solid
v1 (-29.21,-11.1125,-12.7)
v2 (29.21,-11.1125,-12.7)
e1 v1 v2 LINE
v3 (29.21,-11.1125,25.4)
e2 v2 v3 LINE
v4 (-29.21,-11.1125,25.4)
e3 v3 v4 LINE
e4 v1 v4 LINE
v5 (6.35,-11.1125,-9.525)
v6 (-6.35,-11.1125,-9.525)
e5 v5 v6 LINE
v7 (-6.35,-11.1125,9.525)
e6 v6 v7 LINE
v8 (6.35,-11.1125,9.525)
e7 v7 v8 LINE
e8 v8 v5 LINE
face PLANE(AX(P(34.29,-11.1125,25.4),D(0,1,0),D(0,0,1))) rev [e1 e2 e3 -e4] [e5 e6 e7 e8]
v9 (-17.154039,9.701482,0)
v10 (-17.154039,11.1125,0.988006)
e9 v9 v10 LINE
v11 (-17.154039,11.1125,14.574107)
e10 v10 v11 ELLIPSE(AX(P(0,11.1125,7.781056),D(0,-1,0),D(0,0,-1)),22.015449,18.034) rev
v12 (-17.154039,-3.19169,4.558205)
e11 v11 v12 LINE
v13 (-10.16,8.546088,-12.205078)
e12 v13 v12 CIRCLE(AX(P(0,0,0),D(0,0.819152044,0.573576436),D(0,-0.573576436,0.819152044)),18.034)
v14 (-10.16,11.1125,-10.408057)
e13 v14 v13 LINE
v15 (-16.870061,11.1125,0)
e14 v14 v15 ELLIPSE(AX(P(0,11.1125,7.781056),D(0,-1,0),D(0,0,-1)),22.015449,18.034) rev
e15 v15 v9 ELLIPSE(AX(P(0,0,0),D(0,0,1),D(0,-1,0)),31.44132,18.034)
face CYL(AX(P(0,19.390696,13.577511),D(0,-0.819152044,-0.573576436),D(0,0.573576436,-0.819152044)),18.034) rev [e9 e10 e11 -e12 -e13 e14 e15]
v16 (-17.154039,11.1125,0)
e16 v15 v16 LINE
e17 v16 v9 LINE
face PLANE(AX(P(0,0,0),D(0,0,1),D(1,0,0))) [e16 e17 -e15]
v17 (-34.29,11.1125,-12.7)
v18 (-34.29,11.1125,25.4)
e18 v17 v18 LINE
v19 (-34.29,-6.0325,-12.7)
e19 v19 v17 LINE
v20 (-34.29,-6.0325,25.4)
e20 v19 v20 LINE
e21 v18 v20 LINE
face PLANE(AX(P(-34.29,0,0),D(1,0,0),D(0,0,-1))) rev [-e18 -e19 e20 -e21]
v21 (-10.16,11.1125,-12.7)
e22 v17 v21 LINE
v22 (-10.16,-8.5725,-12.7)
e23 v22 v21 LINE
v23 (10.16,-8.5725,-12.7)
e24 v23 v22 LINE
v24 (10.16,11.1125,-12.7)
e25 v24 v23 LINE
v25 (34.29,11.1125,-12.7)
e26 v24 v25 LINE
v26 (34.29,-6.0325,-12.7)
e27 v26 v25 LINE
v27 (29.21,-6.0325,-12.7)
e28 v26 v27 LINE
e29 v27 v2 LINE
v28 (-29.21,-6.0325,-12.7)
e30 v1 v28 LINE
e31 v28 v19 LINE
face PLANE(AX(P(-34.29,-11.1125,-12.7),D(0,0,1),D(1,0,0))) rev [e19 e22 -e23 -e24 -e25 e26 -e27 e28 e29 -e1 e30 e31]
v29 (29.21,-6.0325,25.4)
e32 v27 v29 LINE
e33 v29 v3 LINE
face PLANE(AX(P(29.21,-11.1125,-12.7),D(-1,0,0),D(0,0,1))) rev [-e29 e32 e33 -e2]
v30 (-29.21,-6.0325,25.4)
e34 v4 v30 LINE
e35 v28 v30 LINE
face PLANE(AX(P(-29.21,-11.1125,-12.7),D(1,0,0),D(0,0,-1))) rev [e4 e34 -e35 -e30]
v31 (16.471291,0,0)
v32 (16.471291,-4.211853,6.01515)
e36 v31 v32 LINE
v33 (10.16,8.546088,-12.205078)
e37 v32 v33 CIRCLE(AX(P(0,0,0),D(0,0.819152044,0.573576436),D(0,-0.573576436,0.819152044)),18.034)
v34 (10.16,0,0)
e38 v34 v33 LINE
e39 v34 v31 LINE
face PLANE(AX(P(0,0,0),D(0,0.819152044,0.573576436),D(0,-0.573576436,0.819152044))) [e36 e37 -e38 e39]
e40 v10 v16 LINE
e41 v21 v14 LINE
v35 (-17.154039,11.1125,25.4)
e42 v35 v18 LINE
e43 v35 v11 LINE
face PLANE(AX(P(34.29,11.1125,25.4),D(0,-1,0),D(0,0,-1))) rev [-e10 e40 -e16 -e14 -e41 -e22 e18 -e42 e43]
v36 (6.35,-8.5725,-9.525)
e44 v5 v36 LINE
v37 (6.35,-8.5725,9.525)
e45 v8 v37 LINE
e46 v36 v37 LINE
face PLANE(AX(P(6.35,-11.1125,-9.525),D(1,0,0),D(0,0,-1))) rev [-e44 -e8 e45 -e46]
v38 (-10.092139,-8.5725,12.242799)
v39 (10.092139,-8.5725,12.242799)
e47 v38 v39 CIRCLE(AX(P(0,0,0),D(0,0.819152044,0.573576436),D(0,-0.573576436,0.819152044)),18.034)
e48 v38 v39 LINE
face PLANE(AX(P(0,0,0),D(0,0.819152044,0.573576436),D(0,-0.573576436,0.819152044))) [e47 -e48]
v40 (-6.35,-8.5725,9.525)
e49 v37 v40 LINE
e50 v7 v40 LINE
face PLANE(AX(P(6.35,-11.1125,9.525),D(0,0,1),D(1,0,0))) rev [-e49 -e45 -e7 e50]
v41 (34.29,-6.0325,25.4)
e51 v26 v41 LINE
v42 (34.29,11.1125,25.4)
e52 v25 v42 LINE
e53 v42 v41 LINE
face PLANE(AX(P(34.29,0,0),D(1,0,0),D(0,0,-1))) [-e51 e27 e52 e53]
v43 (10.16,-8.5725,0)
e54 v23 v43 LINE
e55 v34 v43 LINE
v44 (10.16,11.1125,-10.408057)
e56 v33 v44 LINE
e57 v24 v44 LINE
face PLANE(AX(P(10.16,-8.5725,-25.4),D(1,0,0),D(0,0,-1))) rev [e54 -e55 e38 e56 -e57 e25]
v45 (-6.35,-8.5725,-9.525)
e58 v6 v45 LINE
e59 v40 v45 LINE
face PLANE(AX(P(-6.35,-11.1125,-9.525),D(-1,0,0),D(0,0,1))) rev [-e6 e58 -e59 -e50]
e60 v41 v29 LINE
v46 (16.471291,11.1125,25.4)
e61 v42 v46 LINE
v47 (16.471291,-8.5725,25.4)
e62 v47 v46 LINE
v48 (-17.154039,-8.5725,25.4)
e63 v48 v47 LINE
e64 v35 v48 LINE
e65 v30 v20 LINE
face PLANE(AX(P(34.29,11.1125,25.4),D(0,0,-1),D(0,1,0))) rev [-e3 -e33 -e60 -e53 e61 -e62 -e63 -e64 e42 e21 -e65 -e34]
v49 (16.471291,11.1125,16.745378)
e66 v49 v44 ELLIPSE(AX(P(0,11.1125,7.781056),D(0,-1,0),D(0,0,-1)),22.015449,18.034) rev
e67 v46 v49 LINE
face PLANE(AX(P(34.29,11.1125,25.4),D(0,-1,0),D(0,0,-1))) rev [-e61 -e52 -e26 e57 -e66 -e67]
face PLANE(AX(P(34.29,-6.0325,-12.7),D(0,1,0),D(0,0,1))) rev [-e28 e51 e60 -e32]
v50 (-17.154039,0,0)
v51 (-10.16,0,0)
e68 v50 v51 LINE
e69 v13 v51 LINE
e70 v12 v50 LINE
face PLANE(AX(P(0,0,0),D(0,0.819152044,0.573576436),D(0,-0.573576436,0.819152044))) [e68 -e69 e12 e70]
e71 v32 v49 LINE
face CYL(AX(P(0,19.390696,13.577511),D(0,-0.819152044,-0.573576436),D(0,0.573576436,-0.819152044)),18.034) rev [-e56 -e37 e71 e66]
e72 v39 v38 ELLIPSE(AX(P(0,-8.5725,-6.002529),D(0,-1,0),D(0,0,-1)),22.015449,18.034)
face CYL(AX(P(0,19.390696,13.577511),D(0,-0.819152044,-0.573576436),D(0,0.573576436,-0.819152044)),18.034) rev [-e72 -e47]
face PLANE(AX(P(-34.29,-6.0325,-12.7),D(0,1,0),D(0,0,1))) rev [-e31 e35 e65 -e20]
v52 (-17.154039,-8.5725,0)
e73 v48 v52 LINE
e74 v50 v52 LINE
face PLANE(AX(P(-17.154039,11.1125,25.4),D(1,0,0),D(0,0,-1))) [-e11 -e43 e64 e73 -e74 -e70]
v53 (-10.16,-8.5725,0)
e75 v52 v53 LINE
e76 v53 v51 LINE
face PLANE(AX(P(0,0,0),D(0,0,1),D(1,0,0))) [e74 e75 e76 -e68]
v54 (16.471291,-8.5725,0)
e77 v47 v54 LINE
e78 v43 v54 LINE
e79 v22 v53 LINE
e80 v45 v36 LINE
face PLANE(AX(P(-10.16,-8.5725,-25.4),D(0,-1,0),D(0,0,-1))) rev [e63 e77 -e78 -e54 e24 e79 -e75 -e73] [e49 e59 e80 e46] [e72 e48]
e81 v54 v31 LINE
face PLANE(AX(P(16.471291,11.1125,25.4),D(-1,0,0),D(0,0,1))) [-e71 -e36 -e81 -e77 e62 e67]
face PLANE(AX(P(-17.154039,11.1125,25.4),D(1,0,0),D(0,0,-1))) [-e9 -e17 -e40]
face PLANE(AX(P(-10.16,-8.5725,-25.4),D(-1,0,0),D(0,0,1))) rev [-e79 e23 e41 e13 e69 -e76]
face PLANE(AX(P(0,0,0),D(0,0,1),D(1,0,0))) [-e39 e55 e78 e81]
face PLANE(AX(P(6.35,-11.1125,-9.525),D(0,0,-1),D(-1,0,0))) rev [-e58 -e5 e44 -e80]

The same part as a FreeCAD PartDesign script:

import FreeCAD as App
import Part
import Sketcher
Q = App.Units.Quantity


def add_polygon(sketch, points):
    """Adds a closed chain of lines whose ends are joined by coincident constraints."""
    first, n = sketch.GeometryCount, len(points)
    for a, b in zip(points, points[1:] + points[:1]):
        sketch.addGeometry(Part.LineSegment(App.Vector(*a, 0), App.Vector(*b, 0)), False)
    for i in range(n):
        sketch.addConstraint(Sketcher.Constraint("Coincident", first + i, 2, first + (i + 1) % n, 1))

doc = App.newDocument("Part")
body = doc.addObject("PartDesign::Body", "Body")

# Sketch on YZ plane
sketch1 = doc.addObject("Sketcher::SketchObject", "Sketch")
body.addObject(sketch1)
sketch1.AttachmentSupport = (doc.YZ_Plane, [""])
sketch1.MapMode = "FlatFace"
add_polygon(sketch1, [(11.1125, 25.4), (-11.1125, 25.4), (-11.1125, -25.4), (11.1125, -25.4)])  # lines 0-3
sketch1.addConstraint(Sketcher.Constraint("Horizontal", 0))
sketch1.addConstraint(Sketcher.Constraint("Vertical", 1))
sketch1.addConstraint(Sketcher.Constraint("Horizontal", 2))
sketch1.addConstraint(Sketcher.Constraint("Vertical", 3))
sketch1.addConstraint(Sketcher.Constraint("Symmetric", 0, 2, 2, 2, -1, 1))
sketch1.addConstraint(Sketcher.Constraint("DistanceY", 1, 2, 1, 1, Q("2 in")))
sketch1.addConstraint(Sketcher.Constraint("DistanceX", 0, 2, 0, 1, Q("0.875 in")))
pad1 = doc.addObject("PartDesign::Pad", "Pad")
body.addObject(pad1)
pad1.Profile = sketch1
pad1.Length = Q("2.7 in")
pad1.Midplane = True

# Sketch on an angled plane
sketch2 = doc.addObject("Sketcher::SketchObject", "Sketch001")
body.addObject(sketch2)
sketch2.Placement = App.Placement(App.Vector(0, 0, 0), App.Rotation(App.Vector(1, 0, 0), App.Vector(0, 0.573576436, -0.819152044), App.Vector(0, 0.819152044, 0.573576436), "ZXY"))
sketch2.addGeometry(Part.Circle(App.Vector(0, 0, 0), App.Vector(0, 0, 1), 18.034), False)
sketch2.addConstraint(Sketcher.Constraint("Coincident", 0, 3, -1, 1))
sketch2.addConstraint(Sketcher.Constraint("Diameter", 0, Q("1.42 in")))
pocket1 = doc.addObject("PartDesign::Pocket", "Pocket")
body.addObject(pocket1)
pocket1.Profile = sketch2
pocket1.Type = "ThroughAll"
pocket1.Reversed = True

# Sketch on XY plane
sketch3 = doc.addObject("Sketcher::SketchObject", "Sketch002")
body.addObject(sketch3)
sketch3.AttachmentSupport = (doc.XY_Plane, [""])
sketch3.MapMode = "FlatFace"
sketch3.AttachmentOffset = App.Placement(App.Vector(0, 0, 1 * 25.4), App.Rotation())
add_polygon(sketch3, [(-10.16, 11.1125), (-10.16, -8.5725), (10.16, -8.5725), (10.16, 11.1125)])  # lines 0-3
sketch3.addConstraint(Sketcher.Constraint("Vertical", 0))
sketch3.addConstraint(Sketcher.Constraint("Horizontal", 1))
sketch3.addConstraint(Sketcher.Constraint("Vertical", 2))
sketch3.addConstraint(Sketcher.Constraint("Horizontal", 3))
sketch3.addConstraint(Sketcher.Constraint("DistanceX", 1, 1, 1, 2, Q("0.8 in")))
sketch3.addConstraint(Sketcher.Constraint("DistanceX", 0, 2, -1, 1, Q("0.4 in")))
sketch3.addConstraint(Sketcher.Constraint("DistanceY", 0, 2, 0, 1, Q("0.775 in")))
sketch3.addConstraint(Sketcher.Constraint("DistanceY", -1, 1, 2, 2, Q("0.4375 in")))
pocket2 = doc.addObject("PartDesign::Pocket", "Pocket001")
body.addObject(pocket2)
pocket2.Profile = sketch3
pocket2.Type = "ThroughAll"

# Sketch on XZ plane
sketch4 = doc.addObject("Sketcher::SketchObject", "Sketch003")
body.addObject(sketch4)
sketch4.AttachmentSupport = (doc.XZ_Plane, [""])
sketch4.MapMode = "FlatFace"
add_polygon(sketch4, [(-6.35, -9.525), (-6.35, 9.525), (6.35, 9.525), (6.35, -9.525)])  # lines 0-3
sketch4.addConstraint(Sketcher.Constraint("Vertical", 0))
sketch4.addConstraint(Sketcher.Constraint("Horizontal", 1))
sketch4.addConstraint(Sketcher.Constraint("Vertical", 2))
sketch4.addConstraint(Sketcher.Constraint("Horizontal", 3))
sketch4.addConstraint(Sketcher.Constraint("Symmetric", 0, 2, 2, 2, -1, 1))
sketch4.addConstraint(Sketcher.Constraint("DistanceX", 1, 1, 1, 2, Q("0.5 in")))
sketch4.addConstraint(Sketcher.Constraint("DistanceY", 0, 1, 0, 2, Q("0.75 in")))
pocket3 = doc.addObject("PartDesign::Pocket", "Pocket002")
body.addObject(pocket3)
pocket3.Profile = sketch4
pocket3.Type = "ThroughAll"
pocket3.Reversed = True

# Sketch on XZ plane
sketch5 = doc.addObject("Sketcher::SketchObject", "Sketch004")
body.addObject(sketch5)
sketch5.AttachmentSupport = (doc.XZ_Plane, [""])
sketch5.MapMode = "FlatFace"
sketch5.AttachmentOffset = App.Placement(App.Vector(0, 0, -0.4375 * 25.4), App.Rotation())
add_polygon(sketch5, [(-34.29, -25.4), (-34.29, -12.7), (34.29, -12.7), (34.29, -25.4)])  # lines 0-3
sketch5.addConstraint(Sketcher.Constraint("Vertical", 0))
sketch5.addConstraint(Sketcher.Constraint("Horizontal", 1))
sketch5.addConstraint(Sketcher.Constraint("Vertical", 2))
sketch5.addConstraint(Sketcher.Constraint("Horizontal", 3))
sketch5.addConstraint(Sketcher.Constraint("DistanceX", 1, 1, 1, 2, Q("2.7 in")))
sketch5.addConstraint(Sketcher.Constraint("DistanceY", 0, 1, 0, 2, Q("0.5 in")))
sketch5.addConstraint(Sketcher.Constraint("DistanceY", 2, 2, -1, 1, Q("1 in")))
sketch5.addConstraint(Sketcher.Constraint("DistanceX", 0, 2, -1, 1, Q("1.35 in")))
pocket4 = doc.addObject("PartDesign::Pocket", "Pocket003")
body.addObject(pocket4)
pocket4.Profile = sketch5
pocket4.Type = "ThroughAll"
pocket4.Reversed = True

# Sketch on XY plane
sketch6 = doc.addObject("Sketcher::SketchObject", "Sketch005")
body.addObject(sketch6)
sketch6.AttachmentSupport = (doc.XY_Plane, [""])
sketch6.MapMode = "FlatFace"
add_polygon(sketch6, [(-34.29, -6.0325), (-34.29, -11.1125), (-29.21, -11.1125), (-29.21, -6.0325)])  # lines 0-3
add_polygon(sketch6, [(29.21, -6.0325), (29.21, -11.1125), (34.29, -11.1125), (34.29, -6.0325)])  # lines 4-7
sketch6.addConstraint(Sketcher.Constraint("Vertical", 0))
sketch6.addConstraint(Sketcher.Constraint("Horizontal", 1))
sketch6.addConstraint(Sketcher.Constraint("Vertical", 2))
sketch6.addConstraint(Sketcher.Constraint("Horizontal", 3))
sketch6.addConstraint(Sketcher.Constraint("Vertical", 4))
sketch6.addConstraint(Sketcher.Constraint("Horizontal", 5))
sketch6.addConstraint(Sketcher.Constraint("Vertical", 6))
sketch6.addConstraint(Sketcher.Constraint("Horizontal", 7))
sketch6.addConstraint(Sketcher.Constraint("Symmetric", 1, 2, 4, 2, -2))
sketch6.addConstraint(Sketcher.Constraint("Symmetric", 3, 2, 6, 2, -2))
sketch6.addConstraint(Sketcher.Constraint("Equal", 7, 0))
sketch6.addConstraint(Sketcher.Constraint("DistanceX", 1, 1, 1, 2, Q("0.2 in")))
sketch6.addConstraint(Sketcher.Constraint("DistanceX", 1, 2, 4, 2, Q("2.3 in")))
sketch6.addConstraint(Sketcher.Constraint("DistanceY", 0, 2, -1, 1, Q("0.4375 in")))
pocket5 = doc.addObject("PartDesign::Pocket", "Pocket004")
body.addObject(pocket5)
pocket5.Profile = sketch6
pocket5.Type = "ThroughAll"
pocket5.Midplane = True

# Sketch on XY plane
sketch7 = doc.addObject("Sketcher::SketchObject", "Sketch006")
body.addObject(sketch7)
sketch7.AttachmentSupport = (doc.XY_Plane, [""])
sketch7.MapMode = "FlatFace"
add_polygon(sketch7, [(-17.154039, 11.1125), (-17.154039, -8.5725), (16.471291, -8.5725), (16.471291, 11.1125)])  # lines 0-3
sketch7.addConstraint(Sketcher.Constraint("Vertical", 0))
sketch7.addConstraint(Sketcher.Constraint("Horizontal", 1))
sketch7.addConstraint(Sketcher.Constraint("Vertical", 2))
sketch7.addConstraint(Sketcher.Constraint("Horizontal", 3))
sketch7.addConstraint(Sketcher.Constraint("DistanceY", 0, 2, 0, 1, Q("0.775 in")))
sketch7.addConstraint(Sketcher.Constraint("DistanceY", -1, 1, 2, 2, Q("0.4375 in")))
sketch7.addConstraint(Sketcher.Constraint("DistanceX", 1, 1, 1, 2, Q("33.625329 mm")))
sketch7.addConstraint(Sketcher.Constraint("DistanceX", 0, 2, -1, 1, Q("17.154039 mm")))
pocket6 = doc.addObject("PartDesign::Pocket", "Pocket005")
body.addObject(pocket6)
pocket6.Profile = sketch7
pocket6.Type = "ThroughAll"
pocket6.Reversed = True

doc.recompute()
